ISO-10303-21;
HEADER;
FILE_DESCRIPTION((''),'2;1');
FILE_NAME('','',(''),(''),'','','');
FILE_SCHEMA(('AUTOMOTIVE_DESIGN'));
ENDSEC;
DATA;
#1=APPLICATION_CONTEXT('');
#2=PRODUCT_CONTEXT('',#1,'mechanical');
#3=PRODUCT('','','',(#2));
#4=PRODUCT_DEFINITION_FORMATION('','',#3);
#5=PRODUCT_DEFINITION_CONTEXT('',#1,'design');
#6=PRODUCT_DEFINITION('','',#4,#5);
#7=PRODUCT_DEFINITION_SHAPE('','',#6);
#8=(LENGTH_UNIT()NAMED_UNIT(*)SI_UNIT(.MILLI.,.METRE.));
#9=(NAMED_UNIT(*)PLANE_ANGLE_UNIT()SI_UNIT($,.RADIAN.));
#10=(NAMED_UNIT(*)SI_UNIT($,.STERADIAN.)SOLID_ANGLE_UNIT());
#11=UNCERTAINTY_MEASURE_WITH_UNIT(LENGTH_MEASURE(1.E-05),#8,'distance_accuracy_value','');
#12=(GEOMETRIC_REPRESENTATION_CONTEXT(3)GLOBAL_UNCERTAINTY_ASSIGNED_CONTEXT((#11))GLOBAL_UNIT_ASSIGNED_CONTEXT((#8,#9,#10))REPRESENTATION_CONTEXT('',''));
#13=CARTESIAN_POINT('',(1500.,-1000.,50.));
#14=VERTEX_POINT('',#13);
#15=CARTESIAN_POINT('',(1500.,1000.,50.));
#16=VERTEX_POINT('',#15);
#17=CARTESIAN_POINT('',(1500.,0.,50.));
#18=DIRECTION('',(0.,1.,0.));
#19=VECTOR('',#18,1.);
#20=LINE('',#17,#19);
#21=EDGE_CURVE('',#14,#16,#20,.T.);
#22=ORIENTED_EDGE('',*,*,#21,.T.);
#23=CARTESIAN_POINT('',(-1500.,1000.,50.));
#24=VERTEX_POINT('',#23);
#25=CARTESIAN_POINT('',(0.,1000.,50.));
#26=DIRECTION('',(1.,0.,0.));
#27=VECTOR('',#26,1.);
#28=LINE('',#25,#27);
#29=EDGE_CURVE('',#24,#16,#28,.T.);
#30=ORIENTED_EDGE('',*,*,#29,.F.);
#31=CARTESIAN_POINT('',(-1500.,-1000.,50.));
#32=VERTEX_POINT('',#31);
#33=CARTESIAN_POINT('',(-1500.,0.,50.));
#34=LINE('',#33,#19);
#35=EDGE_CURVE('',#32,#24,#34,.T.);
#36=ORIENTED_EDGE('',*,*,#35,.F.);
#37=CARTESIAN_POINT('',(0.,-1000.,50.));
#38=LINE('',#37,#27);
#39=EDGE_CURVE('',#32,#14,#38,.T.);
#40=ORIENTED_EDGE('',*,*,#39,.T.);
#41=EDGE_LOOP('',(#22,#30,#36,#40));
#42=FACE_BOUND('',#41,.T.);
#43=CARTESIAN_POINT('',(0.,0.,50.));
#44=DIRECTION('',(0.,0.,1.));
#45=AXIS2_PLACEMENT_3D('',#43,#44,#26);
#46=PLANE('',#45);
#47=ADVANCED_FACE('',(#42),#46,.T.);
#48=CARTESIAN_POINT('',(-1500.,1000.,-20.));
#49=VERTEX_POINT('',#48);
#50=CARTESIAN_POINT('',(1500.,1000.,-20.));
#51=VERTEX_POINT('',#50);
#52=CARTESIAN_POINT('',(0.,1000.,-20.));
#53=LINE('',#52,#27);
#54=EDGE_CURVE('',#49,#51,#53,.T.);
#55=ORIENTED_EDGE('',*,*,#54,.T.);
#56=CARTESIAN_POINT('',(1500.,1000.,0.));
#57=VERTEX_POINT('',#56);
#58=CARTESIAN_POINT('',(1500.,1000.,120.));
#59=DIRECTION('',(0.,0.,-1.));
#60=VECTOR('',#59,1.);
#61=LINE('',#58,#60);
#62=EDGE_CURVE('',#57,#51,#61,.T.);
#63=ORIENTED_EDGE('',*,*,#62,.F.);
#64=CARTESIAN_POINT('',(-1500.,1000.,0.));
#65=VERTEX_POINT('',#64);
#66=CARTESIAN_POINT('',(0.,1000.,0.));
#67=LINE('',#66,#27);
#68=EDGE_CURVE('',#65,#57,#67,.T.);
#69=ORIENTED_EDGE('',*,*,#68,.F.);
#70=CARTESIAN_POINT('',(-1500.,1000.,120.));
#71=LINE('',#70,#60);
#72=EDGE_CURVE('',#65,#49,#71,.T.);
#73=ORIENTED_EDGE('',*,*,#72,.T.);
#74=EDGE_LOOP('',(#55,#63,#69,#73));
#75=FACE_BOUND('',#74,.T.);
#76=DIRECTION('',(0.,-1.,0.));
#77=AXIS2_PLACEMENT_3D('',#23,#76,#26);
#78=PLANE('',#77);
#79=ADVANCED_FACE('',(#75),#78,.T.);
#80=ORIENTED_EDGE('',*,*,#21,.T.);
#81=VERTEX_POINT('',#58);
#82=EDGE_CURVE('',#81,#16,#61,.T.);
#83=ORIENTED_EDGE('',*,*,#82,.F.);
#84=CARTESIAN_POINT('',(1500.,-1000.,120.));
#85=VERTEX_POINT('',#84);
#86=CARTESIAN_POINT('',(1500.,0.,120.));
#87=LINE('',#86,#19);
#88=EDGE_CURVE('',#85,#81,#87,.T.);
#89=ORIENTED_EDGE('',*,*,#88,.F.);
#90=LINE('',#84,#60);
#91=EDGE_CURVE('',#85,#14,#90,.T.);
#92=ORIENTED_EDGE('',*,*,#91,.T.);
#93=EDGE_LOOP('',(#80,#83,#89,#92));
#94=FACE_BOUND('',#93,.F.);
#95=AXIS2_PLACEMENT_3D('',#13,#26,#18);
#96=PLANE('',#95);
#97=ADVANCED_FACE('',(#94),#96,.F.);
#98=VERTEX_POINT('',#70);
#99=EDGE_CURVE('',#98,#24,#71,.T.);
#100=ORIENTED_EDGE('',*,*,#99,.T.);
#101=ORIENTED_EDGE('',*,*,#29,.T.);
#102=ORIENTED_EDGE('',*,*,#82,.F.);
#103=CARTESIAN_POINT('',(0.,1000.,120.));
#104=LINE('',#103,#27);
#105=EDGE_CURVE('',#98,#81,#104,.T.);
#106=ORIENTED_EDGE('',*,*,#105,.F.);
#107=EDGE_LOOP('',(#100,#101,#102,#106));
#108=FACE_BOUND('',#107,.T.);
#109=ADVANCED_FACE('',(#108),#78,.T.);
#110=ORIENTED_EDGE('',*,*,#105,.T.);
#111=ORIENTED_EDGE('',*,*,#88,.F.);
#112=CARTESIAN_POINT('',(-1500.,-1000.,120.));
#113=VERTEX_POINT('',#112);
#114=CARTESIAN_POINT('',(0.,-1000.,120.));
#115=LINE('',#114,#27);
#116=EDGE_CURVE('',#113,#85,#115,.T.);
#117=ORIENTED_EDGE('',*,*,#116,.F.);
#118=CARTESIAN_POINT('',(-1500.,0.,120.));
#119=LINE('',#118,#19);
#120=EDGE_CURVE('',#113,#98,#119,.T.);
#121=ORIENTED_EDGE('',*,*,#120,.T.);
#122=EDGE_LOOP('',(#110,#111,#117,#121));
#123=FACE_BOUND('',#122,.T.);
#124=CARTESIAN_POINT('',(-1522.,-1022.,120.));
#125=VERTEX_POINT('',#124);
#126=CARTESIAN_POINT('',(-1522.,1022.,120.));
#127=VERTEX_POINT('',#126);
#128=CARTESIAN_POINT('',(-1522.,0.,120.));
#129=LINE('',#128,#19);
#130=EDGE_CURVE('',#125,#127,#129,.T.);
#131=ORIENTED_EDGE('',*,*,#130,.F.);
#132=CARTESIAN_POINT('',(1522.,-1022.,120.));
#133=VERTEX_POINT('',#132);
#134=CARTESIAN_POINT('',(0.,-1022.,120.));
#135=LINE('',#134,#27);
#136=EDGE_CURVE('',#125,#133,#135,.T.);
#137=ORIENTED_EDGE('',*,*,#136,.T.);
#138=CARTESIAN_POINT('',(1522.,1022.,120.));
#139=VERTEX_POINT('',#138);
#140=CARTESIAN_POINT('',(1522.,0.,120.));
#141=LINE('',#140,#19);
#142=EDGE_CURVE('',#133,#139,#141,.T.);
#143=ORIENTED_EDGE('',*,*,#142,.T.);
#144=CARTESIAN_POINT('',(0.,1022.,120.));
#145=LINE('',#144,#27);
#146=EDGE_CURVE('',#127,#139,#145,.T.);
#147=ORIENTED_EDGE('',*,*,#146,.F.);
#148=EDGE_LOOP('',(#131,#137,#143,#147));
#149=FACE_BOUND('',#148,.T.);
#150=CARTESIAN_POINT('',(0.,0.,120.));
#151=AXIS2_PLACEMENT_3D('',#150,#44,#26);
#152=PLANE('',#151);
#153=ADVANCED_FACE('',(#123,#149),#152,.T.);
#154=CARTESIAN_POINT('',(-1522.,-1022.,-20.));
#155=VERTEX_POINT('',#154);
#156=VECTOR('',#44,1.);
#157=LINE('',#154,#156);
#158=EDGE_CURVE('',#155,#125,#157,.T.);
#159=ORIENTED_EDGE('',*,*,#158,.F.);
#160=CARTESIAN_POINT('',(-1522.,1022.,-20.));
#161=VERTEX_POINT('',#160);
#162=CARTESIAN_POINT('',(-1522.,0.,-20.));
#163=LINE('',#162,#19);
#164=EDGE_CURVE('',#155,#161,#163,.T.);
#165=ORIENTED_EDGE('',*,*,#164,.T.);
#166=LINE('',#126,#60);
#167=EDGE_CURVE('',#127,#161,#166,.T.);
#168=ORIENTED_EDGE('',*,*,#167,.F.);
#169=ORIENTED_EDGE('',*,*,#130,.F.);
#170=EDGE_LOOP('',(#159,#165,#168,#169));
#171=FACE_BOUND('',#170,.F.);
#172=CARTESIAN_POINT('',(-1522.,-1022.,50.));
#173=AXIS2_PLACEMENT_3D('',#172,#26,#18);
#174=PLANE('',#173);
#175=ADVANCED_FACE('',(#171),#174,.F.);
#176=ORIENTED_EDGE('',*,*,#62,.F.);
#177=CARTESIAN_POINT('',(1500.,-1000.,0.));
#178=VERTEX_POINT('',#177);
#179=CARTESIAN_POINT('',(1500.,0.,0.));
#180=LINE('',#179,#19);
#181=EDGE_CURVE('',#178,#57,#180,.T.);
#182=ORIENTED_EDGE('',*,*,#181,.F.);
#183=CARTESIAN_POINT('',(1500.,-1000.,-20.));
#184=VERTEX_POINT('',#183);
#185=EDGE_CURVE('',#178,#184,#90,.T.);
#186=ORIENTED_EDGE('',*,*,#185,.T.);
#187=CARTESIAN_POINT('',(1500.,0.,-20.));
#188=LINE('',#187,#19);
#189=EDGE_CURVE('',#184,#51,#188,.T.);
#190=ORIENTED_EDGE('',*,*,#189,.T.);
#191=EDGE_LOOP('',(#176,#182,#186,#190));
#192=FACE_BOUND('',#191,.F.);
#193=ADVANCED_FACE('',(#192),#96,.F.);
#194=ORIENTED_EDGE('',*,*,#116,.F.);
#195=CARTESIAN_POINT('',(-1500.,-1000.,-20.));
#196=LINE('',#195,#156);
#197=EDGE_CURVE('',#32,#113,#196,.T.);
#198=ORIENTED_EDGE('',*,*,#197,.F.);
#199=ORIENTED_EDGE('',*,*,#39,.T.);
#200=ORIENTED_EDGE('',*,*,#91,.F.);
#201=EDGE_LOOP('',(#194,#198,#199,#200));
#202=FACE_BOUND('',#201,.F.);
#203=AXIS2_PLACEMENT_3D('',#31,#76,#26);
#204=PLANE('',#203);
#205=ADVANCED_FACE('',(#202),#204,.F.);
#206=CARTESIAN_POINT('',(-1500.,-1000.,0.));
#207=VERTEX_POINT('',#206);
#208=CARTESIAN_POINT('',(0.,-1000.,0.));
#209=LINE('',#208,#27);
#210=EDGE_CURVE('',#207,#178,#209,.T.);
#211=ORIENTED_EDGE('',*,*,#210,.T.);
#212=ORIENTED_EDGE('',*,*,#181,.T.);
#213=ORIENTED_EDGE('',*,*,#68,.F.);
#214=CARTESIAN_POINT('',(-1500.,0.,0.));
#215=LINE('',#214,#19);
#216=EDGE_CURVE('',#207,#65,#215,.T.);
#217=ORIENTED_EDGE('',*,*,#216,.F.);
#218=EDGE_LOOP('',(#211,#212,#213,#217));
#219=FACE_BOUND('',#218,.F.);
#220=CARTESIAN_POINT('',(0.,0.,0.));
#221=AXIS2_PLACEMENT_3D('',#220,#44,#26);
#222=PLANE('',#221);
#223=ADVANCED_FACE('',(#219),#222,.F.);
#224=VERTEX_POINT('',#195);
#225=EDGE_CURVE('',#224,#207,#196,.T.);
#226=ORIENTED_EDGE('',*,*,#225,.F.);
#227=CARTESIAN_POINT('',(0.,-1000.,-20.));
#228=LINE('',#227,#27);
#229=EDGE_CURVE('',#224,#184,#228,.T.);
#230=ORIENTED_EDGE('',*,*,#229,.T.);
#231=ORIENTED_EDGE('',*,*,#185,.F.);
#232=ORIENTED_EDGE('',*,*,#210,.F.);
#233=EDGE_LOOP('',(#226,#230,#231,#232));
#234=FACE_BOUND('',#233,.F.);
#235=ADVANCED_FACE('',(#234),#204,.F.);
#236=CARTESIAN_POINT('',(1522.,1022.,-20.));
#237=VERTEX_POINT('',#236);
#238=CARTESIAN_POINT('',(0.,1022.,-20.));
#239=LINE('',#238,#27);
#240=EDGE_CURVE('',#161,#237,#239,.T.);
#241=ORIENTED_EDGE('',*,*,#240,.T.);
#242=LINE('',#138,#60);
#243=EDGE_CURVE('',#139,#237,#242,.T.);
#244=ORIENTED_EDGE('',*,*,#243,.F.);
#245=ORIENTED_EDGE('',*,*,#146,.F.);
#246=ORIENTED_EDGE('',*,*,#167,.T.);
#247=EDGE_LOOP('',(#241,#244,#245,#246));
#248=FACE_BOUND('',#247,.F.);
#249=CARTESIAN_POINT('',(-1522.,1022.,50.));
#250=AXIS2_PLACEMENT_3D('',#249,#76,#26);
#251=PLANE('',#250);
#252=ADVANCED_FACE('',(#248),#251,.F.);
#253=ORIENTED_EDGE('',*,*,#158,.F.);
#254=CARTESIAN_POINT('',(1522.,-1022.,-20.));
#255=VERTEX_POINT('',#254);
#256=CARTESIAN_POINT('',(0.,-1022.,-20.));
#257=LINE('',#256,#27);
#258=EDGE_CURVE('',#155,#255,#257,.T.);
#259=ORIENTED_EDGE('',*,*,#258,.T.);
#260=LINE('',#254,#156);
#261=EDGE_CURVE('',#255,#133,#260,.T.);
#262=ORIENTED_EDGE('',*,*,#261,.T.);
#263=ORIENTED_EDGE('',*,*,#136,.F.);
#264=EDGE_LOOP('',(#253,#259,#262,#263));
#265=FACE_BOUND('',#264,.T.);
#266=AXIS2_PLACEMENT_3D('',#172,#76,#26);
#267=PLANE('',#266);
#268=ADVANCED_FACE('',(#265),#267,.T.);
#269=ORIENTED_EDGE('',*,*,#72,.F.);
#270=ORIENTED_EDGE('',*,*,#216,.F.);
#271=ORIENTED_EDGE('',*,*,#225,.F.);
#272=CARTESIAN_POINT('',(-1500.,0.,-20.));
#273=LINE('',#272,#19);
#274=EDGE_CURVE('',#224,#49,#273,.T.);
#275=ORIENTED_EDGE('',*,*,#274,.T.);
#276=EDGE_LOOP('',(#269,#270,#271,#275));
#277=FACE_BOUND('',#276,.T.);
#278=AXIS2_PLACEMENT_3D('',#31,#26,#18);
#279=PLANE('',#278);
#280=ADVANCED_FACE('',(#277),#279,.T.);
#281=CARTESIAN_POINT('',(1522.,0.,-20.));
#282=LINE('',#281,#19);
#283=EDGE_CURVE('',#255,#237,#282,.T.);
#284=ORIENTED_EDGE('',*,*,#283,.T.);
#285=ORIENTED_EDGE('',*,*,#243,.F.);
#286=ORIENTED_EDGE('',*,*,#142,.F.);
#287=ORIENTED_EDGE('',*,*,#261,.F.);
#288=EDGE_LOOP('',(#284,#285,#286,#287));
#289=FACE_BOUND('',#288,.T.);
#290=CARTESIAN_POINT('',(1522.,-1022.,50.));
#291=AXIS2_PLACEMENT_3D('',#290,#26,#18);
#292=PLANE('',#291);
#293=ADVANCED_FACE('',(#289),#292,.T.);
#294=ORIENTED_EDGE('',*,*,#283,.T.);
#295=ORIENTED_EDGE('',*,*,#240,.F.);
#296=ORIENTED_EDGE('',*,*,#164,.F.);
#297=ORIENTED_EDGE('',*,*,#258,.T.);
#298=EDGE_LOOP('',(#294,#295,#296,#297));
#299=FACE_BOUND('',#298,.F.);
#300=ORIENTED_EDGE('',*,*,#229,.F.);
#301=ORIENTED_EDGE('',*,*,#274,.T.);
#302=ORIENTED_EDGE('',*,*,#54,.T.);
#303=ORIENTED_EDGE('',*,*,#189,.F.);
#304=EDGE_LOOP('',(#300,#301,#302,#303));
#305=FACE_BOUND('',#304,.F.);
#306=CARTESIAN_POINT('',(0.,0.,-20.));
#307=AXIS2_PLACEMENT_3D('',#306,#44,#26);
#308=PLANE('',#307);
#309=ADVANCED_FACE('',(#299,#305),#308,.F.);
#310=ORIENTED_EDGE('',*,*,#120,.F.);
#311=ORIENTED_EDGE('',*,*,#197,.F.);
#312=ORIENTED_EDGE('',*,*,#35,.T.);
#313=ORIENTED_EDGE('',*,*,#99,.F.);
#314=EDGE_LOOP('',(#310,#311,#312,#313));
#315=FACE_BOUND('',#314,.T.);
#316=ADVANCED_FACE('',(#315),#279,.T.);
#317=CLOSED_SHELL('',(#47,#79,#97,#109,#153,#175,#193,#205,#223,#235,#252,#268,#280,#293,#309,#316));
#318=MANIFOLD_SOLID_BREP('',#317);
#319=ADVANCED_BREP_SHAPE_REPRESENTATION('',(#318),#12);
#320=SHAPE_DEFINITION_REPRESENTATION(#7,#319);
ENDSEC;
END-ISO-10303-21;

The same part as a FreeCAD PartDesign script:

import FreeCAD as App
import Part
import Sketcher

V = App.Vector


def add_polygon(sketch, points):
    """Adds a closed chain of lines whose ends are joined by coincident constraints."""
    first, n = sketch.GeometryCount, len(points)
    for a, b in zip(points, points[1:] + points[:1]):
        sketch.addGeometry(Part.LineSegment(App.Vector(*a, 0), App.Vector(*b, 0)), False)
    for i in range(n):
        sketch.addConstraint(Sketcher.Constraint("Coincident", first + i, 2, first + (i + 1) % n, 1))

doc = App.newDocument("Part")
body = doc.addObject("PartDesign::Body", "Body")

# Sketch on XY plane
sketch1 = body.newObject("Sketcher::SketchObject", "Sketch")
sketch1.AttachmentSupport = (doc.getObject("XY_Plane"), [""])
sketch1.MapMode = "FlatFace"
add_polygon(sketch1, [(-1500, 1000), (-1500, -1000), (1500, -1000), (1500, 1000)])  # lines 0-3
sketch1.addConstraint([
    Sketcher.Constraint("Vertical", 0),
    Sketcher.Constraint("Horizontal", 1),
    Sketcher.Constraint("Vertical", 2),
    Sketcher.Constraint("Horizontal", 3),
    Sketcher.Constraint("Symmetric", 0, 2, 2, 2, -1, 1),
    Sketcher.Constraint("DistanceX", 1, 1, 1, 2, 3000.0),
    Sketcher.Constraint("DistanceY", 0, 2, 0, 1, 2000.0),
])
pad1 = body.newObject("PartDesign::Pad", "Pad")
pad1.Profile = sketch1
pad1.Length = 50

# Sketch on XY plane
sketch2 = body.newObject("Sketcher::SketchObject", "Sketch001")
sketch2.AttachmentSupport = (doc.getObject("XY_Plane"), [""])
sketch2.MapMode = "FlatFace"
sketch2.AttachmentOffset = App.Placement(V(0, 0, 50), App.Rotation())
add_polygon(sketch2, [(-1522, 1022), (-1522, -1022), (1522, -1022), (1522, 1022)])  # lines 0-3
add_polygon(sketch2, [(1500, -1000), (-1500, -1000), (-1500, 1000), (1500, 1000)])  # lines 4-7
sketch2.addConstraint([
    Sketcher.Constraint("Vertical", 0),
    Sketcher.Constraint("Horizontal", 1),
    Sketcher.Constraint("Vertical", 2),
    Sketcher.Constraint("Horizontal", 3),
    Sketcher.Constraint("Horizontal", 4),
    Sketcher.Constraint("Vertical", 5),
    Sketcher.Constraint("Horizontal", 6),
    Sketcher.Constraint("Vertical", 7),
    Sketcher.Constraint("Symmetric", 0, 2, 2, 2, -1, 1),
    Sketcher.Constraint("Symmetric", 4, 2, 6, 2, -1, 1),
    Sketcher.Constraint("DistanceX", 1, 1, 1, 2, 3044.0),
    Sketcher.Constraint("DistanceX", 4, 2, 4, 1, 3000.0),
    Sketcher.Constraint("DistanceY", 0, 2, 0, 1, 2044.0),
    Sketcher.Constraint("DistanceY", 5, 1, 5, 2, 2000.0),
])
pad2 = body.newObject("PartDesign::Pad", "Pad001")
pad2.Profile = sketch2
pad2.Length = 140
pad2.Midplane = True

doc.recompute()
